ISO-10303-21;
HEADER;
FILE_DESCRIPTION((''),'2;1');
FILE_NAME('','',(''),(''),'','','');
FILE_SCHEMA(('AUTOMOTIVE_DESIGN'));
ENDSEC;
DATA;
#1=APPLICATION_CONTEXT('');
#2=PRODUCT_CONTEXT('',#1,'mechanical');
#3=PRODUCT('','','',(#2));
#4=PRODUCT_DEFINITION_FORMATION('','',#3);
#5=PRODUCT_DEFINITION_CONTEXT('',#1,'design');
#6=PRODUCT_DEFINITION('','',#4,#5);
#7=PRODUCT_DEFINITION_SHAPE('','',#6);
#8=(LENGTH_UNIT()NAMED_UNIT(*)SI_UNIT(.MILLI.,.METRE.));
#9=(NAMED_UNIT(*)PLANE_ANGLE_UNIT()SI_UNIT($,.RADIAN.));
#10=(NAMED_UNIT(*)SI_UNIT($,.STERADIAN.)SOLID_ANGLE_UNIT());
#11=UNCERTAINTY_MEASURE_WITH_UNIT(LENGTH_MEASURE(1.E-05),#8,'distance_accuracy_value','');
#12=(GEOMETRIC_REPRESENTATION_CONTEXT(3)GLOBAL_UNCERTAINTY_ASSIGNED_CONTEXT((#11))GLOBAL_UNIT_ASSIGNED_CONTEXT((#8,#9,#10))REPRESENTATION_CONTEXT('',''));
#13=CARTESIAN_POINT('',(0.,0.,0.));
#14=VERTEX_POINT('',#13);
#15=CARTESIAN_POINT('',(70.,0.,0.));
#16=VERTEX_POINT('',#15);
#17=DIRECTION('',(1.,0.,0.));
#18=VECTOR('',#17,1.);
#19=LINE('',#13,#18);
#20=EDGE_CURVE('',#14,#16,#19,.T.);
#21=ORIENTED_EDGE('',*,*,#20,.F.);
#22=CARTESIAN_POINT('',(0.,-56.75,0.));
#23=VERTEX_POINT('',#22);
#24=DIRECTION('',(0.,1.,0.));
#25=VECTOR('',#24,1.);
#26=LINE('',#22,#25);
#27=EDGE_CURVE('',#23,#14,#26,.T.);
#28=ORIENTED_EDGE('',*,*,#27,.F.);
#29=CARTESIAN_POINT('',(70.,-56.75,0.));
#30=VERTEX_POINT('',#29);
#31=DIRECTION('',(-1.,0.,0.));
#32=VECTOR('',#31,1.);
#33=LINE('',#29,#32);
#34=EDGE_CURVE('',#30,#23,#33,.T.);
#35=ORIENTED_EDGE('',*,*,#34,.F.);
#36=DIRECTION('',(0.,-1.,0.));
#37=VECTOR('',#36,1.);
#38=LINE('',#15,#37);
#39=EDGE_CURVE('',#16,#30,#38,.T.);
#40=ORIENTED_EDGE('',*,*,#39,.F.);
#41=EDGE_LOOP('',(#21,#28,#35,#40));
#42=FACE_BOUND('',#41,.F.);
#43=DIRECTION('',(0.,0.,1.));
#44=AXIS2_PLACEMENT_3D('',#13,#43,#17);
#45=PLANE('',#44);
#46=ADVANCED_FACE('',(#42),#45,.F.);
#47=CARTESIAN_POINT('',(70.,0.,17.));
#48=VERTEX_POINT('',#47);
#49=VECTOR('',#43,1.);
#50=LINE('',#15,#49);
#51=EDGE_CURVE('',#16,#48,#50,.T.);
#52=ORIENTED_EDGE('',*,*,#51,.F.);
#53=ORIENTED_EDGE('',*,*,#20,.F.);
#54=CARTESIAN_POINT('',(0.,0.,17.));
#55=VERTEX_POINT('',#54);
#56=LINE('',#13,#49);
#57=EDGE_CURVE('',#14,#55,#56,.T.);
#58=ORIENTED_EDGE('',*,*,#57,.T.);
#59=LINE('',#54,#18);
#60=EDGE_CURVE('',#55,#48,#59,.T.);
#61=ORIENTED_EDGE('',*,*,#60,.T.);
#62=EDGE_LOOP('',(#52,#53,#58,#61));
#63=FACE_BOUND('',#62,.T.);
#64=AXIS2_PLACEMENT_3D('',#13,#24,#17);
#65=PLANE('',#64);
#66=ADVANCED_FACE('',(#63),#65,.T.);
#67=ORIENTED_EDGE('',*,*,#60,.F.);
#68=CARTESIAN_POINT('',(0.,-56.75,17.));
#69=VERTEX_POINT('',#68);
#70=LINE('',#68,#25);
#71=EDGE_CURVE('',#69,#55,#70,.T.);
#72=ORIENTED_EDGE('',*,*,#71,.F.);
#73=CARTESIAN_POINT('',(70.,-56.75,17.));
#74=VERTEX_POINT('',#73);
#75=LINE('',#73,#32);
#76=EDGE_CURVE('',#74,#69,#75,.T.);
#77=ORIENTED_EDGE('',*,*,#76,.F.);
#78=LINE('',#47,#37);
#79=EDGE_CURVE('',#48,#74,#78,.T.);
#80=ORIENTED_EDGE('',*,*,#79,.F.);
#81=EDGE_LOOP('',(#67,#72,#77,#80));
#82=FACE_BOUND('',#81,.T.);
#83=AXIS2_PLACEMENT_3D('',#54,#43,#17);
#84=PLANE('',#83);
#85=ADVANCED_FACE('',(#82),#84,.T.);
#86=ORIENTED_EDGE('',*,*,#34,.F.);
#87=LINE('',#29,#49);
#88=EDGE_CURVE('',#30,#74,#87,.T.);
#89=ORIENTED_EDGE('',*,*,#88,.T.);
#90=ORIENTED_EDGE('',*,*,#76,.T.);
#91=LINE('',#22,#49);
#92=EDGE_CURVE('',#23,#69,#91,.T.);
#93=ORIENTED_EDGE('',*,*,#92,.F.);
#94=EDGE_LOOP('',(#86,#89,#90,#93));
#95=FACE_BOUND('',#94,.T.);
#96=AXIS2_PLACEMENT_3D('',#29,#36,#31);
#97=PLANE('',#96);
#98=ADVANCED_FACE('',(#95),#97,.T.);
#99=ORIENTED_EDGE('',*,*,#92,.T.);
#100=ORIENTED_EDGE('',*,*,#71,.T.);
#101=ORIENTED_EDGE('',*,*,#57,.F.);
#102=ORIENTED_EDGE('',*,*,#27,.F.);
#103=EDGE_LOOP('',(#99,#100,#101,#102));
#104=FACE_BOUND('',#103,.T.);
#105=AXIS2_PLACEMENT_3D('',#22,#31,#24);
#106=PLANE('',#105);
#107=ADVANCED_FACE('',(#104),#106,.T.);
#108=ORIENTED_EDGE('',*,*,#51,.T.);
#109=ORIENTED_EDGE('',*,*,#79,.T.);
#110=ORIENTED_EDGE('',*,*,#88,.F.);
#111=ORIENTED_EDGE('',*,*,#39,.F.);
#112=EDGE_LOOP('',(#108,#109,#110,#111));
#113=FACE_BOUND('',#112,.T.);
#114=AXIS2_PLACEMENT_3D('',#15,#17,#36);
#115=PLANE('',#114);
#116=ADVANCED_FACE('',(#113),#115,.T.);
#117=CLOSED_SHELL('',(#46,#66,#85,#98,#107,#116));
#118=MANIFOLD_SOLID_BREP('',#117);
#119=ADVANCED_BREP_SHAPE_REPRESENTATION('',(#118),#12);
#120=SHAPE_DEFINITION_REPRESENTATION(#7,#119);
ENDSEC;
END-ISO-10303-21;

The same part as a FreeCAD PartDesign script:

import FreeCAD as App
import Part
import Sketcher
Q = App.Units.Quantity

doc = App.newDocument("Part")
body = doc.addObject("PartDesign::Body", "Body")

sketch1 = body.newObject("Sketcher::SketchObject", "Sketch")
sketch1.AttachmentSupport = (doc.getObject("XY_Plane"), [""])
sketch1.MapMode = "FlatFace"
sketch1.addGeometry([
    Part.LineSegment(App.Vector(70, 0, 0), App.Vector(0, 0, 0)),
    Part.LineSegment(App.Vector(0, 0, 0), App.Vector(0, -57, 0)),
    Part.LineSegment(App.Vector(0, -57, 0), App.Vector(70, -57, 0)),
    Part.LineSegment(App.Vector(70, -57, 0), App.Vector(70, 0, 0)),
], False)
sketch1.addConstraint([
    Sketcher.Constraint("Coincident", 0, 2, 1, 1),
    Sketcher.Constraint("Coincident", 1, 2, 2, 1),
    Sketcher.Constraint("Coincident", 2, 2, 3, 1),
    Sketcher.Constraint("Coincident", 3, 2, 0, 1),
    Sketcher.Constraint("Horizontal", 0),
    Sketcher.Constraint("Vertical", 1),
    Sketcher.Constraint("Horizontal", 2),
    Sketcher.Constraint("Vertical", 3),
    Sketcher.Constraint("Coincident", 0, 2, -1, 1),
    Sketcher.Constraint("DistanceX", 0, 2, 0, 1, Q("70 mm")),
    Sketcher.Constraint("DistanceY", 1, 2, 1, 1, Q("56.75 mm")),
])
pad1 = body.newObject("PartDesign::Pad", "Pad")
pad1.Profile = sketch1
pad1.Length = 17

doc.recompute()
